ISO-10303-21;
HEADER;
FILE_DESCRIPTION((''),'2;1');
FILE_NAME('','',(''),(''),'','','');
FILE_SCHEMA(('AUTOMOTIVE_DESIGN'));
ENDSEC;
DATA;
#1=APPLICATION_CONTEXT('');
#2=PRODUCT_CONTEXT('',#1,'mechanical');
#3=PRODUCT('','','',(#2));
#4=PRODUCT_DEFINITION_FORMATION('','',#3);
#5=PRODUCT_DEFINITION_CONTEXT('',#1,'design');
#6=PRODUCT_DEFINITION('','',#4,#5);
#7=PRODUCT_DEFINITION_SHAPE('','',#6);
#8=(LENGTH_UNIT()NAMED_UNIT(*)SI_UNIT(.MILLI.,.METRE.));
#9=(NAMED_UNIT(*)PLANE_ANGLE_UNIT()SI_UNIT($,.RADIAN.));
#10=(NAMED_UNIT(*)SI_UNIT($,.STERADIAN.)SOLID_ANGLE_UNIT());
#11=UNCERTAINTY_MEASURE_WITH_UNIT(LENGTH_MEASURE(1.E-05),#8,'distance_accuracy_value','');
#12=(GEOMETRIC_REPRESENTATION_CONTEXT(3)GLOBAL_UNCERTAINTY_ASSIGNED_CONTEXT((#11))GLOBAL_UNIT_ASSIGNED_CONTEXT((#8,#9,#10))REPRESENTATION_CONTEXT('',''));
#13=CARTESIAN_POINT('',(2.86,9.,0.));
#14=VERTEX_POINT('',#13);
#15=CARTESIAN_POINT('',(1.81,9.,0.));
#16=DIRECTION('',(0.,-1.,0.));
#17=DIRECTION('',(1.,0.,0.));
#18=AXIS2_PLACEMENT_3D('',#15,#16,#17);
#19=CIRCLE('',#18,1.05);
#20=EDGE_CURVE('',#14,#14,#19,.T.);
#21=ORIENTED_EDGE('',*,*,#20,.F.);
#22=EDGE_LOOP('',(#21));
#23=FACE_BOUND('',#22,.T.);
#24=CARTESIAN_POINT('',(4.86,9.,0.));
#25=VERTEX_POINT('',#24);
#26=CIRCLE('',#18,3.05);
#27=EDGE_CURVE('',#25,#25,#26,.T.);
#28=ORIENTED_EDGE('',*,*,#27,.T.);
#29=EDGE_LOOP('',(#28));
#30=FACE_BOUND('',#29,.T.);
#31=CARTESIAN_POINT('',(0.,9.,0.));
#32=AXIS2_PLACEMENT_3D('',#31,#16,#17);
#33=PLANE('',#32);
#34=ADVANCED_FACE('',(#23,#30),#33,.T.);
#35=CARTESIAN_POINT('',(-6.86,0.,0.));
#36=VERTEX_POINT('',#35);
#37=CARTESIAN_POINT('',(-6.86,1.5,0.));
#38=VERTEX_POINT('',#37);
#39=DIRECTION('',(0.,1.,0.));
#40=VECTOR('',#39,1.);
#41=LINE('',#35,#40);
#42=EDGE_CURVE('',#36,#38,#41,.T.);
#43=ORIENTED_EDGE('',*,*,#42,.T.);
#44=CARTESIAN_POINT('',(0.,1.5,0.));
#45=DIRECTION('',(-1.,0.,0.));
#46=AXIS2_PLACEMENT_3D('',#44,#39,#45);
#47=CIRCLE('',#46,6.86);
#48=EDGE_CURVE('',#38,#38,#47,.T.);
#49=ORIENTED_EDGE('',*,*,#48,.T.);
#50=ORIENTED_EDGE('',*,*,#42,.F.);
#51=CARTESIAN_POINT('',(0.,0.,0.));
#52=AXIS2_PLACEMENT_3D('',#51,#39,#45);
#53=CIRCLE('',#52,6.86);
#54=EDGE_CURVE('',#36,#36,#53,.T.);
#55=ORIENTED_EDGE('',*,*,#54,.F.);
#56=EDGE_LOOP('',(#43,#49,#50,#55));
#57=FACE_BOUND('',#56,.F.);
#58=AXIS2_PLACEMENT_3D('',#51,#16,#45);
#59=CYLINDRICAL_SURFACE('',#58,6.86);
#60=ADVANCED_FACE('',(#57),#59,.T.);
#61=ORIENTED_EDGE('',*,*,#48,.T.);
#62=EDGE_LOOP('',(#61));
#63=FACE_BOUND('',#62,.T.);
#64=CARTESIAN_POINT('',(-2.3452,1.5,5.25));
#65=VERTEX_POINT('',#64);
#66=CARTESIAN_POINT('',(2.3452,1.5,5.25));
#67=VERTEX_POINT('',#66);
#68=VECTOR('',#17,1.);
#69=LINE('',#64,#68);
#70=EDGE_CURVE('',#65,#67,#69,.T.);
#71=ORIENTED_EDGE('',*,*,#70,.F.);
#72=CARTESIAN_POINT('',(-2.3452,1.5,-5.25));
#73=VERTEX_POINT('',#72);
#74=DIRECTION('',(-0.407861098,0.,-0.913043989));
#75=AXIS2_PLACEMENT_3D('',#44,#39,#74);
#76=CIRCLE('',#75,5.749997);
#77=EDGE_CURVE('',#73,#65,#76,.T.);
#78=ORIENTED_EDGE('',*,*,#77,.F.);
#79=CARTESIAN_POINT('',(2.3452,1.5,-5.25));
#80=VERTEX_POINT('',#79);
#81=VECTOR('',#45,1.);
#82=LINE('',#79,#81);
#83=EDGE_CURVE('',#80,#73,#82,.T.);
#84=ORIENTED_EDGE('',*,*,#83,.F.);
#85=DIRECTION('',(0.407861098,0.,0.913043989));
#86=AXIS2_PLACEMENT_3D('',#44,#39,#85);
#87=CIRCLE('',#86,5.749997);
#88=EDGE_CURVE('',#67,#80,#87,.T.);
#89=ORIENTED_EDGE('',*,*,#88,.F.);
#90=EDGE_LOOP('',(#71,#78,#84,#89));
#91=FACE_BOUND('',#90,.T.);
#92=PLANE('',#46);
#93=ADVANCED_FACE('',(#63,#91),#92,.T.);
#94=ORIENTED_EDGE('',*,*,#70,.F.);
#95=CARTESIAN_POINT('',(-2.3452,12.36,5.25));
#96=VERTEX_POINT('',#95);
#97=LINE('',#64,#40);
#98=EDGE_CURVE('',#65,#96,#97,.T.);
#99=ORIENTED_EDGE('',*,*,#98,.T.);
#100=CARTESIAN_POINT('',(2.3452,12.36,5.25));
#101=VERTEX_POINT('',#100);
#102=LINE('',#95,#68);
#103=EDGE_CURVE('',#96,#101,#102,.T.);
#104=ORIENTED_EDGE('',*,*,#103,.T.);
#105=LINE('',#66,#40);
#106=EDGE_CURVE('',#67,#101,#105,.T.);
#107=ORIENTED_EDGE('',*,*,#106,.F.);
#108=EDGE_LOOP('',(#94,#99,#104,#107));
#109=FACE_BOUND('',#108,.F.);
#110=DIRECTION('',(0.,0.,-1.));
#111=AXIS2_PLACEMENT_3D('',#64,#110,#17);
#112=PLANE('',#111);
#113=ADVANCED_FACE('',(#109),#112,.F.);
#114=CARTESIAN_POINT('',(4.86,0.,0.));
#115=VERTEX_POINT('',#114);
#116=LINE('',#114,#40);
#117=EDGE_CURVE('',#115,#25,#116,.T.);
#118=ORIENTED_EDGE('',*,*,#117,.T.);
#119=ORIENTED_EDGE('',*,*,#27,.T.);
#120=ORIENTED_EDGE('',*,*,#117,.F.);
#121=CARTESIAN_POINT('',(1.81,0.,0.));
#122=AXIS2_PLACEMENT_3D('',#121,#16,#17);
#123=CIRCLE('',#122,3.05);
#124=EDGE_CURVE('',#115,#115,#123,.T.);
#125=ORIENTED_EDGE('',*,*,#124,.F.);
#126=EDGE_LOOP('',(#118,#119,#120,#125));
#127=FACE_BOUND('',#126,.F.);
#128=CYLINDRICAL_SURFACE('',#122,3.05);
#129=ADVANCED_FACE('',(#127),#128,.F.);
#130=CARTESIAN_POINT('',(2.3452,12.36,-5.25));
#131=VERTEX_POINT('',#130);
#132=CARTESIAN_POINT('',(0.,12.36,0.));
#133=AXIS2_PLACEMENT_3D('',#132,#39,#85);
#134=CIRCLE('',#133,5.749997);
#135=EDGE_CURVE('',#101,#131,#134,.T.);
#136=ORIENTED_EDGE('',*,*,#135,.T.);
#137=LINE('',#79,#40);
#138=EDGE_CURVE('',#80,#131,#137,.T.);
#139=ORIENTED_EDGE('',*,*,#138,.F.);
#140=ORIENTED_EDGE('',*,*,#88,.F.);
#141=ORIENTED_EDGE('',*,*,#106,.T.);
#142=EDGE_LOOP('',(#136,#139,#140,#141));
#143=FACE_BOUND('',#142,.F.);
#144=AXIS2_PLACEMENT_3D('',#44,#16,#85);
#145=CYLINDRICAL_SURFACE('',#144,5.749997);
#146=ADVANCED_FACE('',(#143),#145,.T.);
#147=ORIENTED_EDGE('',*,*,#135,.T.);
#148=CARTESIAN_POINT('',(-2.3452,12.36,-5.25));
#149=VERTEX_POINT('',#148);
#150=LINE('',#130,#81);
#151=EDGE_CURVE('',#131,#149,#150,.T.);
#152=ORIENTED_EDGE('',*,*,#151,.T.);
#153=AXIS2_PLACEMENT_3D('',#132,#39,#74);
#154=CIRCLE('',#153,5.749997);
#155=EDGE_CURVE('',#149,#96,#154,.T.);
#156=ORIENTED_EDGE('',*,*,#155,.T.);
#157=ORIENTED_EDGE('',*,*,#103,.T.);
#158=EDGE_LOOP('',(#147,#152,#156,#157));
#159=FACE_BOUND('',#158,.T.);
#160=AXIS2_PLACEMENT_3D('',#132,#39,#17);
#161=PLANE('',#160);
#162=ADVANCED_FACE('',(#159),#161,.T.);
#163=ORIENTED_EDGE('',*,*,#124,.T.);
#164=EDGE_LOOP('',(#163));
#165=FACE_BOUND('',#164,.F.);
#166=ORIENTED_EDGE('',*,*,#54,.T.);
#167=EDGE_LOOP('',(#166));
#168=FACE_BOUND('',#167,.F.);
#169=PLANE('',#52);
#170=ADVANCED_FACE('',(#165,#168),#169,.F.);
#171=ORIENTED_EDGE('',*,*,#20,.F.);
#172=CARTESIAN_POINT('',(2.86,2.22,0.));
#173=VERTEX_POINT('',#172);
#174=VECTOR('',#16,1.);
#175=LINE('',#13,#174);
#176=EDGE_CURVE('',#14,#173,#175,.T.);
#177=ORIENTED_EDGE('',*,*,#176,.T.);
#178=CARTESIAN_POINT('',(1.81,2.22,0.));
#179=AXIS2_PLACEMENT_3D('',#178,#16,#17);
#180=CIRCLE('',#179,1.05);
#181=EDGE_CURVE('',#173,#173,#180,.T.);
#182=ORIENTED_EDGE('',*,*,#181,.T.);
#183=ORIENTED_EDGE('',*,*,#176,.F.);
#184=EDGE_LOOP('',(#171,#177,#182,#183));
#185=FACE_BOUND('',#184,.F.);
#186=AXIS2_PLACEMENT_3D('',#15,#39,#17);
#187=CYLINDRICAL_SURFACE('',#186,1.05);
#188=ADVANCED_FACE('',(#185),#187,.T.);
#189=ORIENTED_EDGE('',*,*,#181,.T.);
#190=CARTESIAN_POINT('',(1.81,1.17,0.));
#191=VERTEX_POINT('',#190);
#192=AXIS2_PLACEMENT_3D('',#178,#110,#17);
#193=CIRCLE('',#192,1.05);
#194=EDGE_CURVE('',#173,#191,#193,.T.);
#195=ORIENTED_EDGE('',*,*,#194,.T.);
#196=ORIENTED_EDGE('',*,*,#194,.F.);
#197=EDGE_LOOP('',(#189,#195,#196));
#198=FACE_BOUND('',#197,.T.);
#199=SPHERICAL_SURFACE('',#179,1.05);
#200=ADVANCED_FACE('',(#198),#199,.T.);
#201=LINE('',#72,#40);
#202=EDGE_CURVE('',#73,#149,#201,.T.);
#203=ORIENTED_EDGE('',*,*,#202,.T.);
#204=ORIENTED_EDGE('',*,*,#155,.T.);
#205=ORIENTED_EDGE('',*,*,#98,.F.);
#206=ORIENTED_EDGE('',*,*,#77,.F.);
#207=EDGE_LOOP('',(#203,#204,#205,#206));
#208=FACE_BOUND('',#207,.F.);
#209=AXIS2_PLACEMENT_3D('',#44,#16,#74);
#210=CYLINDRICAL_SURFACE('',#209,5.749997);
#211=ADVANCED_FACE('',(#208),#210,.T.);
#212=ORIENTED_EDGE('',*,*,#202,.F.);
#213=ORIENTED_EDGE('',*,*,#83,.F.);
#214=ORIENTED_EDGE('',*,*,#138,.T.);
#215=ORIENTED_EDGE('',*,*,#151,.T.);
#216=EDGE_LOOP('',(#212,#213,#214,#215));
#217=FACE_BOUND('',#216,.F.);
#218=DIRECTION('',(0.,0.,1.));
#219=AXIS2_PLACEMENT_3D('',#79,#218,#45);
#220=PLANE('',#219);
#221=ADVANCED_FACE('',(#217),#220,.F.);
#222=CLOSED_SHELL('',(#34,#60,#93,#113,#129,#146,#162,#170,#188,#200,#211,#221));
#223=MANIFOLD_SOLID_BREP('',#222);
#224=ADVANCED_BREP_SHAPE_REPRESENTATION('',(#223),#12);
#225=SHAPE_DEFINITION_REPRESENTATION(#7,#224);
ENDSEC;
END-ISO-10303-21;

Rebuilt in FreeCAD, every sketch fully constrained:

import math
import FreeCAD as App
import Part
import Sketcher

V = App.Vector
Q = App.Units.Quantity


def edges_at(feature, points):
    """Names of the edges that pass closest to the given points."""
    edges = feature.Shape.Edges
    near = lambda p: min(range(len(edges)), key=lambda i: edges[i].distToShape(Part.Vertex(*p))[0])
    return sorted({f"Edge{near(p) + 1}" for p in points})

doc = App.newDocument("Part")
body = doc.addObject("PartDesign::Body", "Body")

# Sketch on XZ plane
sketch1 = body.newObject("Sketcher::SketchObject", "Sketch")
sketch1.AttachmentSupport = (doc.getObject("XZ_Plane"), [""])
sketch1.MapMode = "FlatFace"
sketch1.addGeometry(Part.Circle(V(0, 0, 0), V(0, 0, 1), 7), False)
sketch1.addConstraint(Sketcher.Constraint("Coincident", 0, 3, -1, 1))
sketch1.addConstraint(Sketcher.Constraint("Diameter", 0, Q("13.72 mm")))
pad1 = body.newObject("PartDesign::Pad", "Pad")
pad1.Profile = sketch1
pad1.Length = 1.5
pad1.Reversed = True

# Sketch on XZ plane
sketch2 = body.newObject("Sketcher::SketchObject", "Sketch001")
sketch2.AttachmentSupport = (doc.getObject("XZ_Plane"), [""])
sketch2.MapMode = "FlatFace"
sketch2.AttachmentOffset = App.Placement(V(0, 0, -1.5), App.Rotation())
sketch2.addGeometry(Part.ArcOfCircle(Part.Circle(V(0, 0, 0), V(0, 0, 1), 5.7), math.radians(114), math.radians(246)), False)
sketch2.addGeometry(Part.LineSegment(V(-2.3, 5.2, 0), V(2.3, 5.2, 0)), False)
sketch2.addGeometry(Part.ArcOfCircle(Part.Circle(V(0, 0, 0), V(0, 0, 1), 5.7), math.radians(-66), math.radians(66)), False)
sketch2.addGeometry(Part.LineSegment(V(2.3, -5.2, 0), V(-2.3, -5.2, 0)), False)
sketch2.addConstraint(Sketcher.Constraint("Coincident", 0, 1, 1, 1))
sketch2.addConstraint(Sketcher.Constraint("Coincident", 1, 2, 2, 2))
sketch2.addConstraint(Sketcher.Constraint("Coincident", 2, 1, 3, 1))
sketch2.addConstraint(Sketcher.Constraint("Coincident", 3, 2, 0, 2))
sketch2.addConstraint(Sketcher.Constraint("Horizontal", 1))
sketch2.addConstraint(Sketcher.Constraint("Horizontal", 3))
sketch2.addConstraint(Sketcher.Constraint("Coincident", 0, 3, -1, 1))
sketch2.addConstraint(Sketcher.Constraint("Coincident", 2, 3, -1, 1))
sketch2.addConstraint(Sketcher.Constraint("Equal", 0, 2))
sketch2.addConstraint(Sketcher.Constraint("Vertical", 1, 2, 2, 1))
sketch2.addConstraint(Sketcher.Constraint("Radius", 0, Q("5.75 mm")))
sketch2.addConstraint(Sketcher.Constraint("DistanceY", 2, 1, 1, 2, Q("10.5 mm")))
pad2 = body.newObject("PartDesign::Pad", "Pad001")
pad2.Profile = sketch2
pad2.Length = 10.86
pad2.Reversed = True

# Sketch on XZ plane
sketch3 = body.newObject("Sketcher::SketchObject", "Sketch002")
sketch3.AttachmentSupport = (doc.getObject("XZ_Plane"), [""])
sketch3.MapMode = "FlatFace"
sketch3.addGeometry(Part.Circle(V(1.8, 0, 0), V(0, 0, 1), 3), False)
sketch3.addConstraint(Sketcher.Constraint("PointOnObject", 0, 3, -1))
sketch3.addConstraint(Sketcher.Constraint("Diameter", 0, Q("6.1 mm")))
sketch3.addConstraint(Sketcher.Constraint("DistanceX", -1, 1, 0, 3, Q("1.81 mm")))
pocket1 = body.newObject("PartDesign::Pocket", "Pocket")
pocket1.Profile = sketch3
pocket1.Length = 9

# Sketch on XZ plane
sketch4 = body.newObject("Sketcher::SketchObject", "Sketch003")
sketch4.AttachmentSupport = (doc.getObject("XZ_Plane"), [""])
sketch4.MapMode = "FlatFace"
sketch4.AttachmentOffset = App.Placement(V(0, 0, -9), App.Rotation())
sketch4.addGeometry(Part.Circle(V(1.8, 0, 0), V(0, 0, 1), 1.1), False)
sketch4.addConstraint(Sketcher.Constraint("PointOnObject", 0, 3, -1))
sketch4.addConstraint(Sketcher.Constraint("Diameter", 0, Q("2.1 mm")))
sketch4.addConstraint(Sketcher.Constraint("DistanceX", -1, 1, 0, 3, Q("1.81 mm")))
pad3 = body.newObject("PartDesign::Pad", "Pad002")
pad3.Profile = sketch4
pad3.Length = 7.83
doc.recompute()

fillet = body.newObject("PartDesign::Fillet", "Fillet")
fillet.Base = (pad3, edges_at(pad3, [(0.76, 1.17, 0)]))
fillet.Radius = 1.05

doc.recompute()
